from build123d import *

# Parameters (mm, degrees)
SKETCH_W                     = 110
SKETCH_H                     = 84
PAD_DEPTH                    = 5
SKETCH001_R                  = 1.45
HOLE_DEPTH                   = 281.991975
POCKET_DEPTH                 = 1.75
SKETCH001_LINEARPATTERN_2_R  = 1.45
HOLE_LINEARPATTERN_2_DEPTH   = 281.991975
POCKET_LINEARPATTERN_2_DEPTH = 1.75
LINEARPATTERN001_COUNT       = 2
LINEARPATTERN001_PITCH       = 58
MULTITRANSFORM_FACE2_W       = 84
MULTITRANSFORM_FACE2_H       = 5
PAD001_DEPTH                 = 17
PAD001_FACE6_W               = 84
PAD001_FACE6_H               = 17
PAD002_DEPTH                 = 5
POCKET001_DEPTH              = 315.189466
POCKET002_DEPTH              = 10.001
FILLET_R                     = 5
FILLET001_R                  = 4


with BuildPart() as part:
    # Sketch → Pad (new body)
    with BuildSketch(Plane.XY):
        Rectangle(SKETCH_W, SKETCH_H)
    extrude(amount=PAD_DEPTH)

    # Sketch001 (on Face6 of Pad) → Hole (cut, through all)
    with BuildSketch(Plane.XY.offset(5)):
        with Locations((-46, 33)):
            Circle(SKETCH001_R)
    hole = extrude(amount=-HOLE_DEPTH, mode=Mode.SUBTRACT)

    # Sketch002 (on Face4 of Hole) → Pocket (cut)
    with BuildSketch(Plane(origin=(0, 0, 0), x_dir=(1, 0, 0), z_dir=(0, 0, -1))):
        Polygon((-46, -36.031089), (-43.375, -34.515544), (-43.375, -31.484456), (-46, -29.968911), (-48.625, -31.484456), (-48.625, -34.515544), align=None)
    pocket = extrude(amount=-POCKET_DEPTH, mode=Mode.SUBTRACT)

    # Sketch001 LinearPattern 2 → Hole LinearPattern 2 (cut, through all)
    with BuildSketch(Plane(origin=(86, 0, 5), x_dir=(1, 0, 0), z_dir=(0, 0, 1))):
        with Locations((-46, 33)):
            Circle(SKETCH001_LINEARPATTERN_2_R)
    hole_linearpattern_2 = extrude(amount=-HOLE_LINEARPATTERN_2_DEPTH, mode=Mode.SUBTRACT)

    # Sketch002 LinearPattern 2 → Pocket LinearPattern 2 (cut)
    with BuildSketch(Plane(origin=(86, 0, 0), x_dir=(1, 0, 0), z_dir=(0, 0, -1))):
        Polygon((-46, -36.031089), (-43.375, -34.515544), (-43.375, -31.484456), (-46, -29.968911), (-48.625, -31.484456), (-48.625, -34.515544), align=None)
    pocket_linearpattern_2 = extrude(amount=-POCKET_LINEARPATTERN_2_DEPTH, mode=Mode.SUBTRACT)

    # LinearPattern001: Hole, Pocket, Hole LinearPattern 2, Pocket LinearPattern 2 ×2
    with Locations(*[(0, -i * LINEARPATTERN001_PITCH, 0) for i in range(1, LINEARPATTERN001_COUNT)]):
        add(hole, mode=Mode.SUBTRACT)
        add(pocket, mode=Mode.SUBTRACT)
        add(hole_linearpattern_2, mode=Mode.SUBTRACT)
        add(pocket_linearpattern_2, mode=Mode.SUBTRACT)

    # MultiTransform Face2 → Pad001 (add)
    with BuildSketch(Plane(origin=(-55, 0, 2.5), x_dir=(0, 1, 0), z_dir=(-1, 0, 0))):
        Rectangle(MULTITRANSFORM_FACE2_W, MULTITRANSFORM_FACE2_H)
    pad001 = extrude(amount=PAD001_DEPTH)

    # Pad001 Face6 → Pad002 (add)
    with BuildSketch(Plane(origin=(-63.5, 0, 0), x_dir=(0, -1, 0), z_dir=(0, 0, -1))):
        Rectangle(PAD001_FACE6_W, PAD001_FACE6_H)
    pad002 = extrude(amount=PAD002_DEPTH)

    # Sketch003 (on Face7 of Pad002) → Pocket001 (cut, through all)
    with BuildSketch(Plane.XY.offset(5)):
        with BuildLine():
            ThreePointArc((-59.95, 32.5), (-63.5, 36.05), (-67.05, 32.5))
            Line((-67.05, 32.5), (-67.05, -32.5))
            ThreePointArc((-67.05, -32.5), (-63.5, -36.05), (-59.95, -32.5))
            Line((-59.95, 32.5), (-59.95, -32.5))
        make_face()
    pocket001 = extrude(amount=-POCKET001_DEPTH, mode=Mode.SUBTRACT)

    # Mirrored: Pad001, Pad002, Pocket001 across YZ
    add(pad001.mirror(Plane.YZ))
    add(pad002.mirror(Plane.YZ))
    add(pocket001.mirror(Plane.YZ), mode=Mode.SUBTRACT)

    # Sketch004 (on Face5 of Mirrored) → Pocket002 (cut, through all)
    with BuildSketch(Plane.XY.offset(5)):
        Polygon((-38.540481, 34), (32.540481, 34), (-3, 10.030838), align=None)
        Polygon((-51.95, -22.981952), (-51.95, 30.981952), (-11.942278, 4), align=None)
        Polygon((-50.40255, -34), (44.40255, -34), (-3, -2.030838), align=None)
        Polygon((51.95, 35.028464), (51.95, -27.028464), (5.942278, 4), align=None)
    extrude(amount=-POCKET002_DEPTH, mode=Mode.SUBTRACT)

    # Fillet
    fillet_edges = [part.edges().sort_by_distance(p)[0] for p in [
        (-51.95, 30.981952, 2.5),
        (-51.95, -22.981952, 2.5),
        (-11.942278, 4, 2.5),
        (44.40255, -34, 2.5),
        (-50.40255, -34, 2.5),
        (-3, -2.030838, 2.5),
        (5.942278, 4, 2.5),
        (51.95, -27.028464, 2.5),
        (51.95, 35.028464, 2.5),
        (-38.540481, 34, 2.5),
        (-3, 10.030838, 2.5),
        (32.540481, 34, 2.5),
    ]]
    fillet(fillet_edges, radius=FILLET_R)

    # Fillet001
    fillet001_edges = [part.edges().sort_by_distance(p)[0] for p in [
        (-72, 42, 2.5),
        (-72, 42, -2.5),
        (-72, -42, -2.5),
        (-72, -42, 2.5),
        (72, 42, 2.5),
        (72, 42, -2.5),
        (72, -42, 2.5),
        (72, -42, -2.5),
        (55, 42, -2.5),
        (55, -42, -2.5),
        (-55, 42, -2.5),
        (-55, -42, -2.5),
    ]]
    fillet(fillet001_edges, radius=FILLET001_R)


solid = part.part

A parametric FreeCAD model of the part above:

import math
import FreeCAD as App
import Part
import Sketcher

V = App.Vector
Q = App.Units.Quantity


def edges_at(feature, points):
    """Names of the edges that pass closest to the given points."""
    edges = feature.Shape.Edges
    near = lambda p: min(range(len(edges)), key=lambda i: edges[i].distToShape(Part.Vertex(*p))[0])
    return sorted({f"Edge{near(p) + 1}" for p in points})

doc = App.newDocument("Part")
params = doc.addObject("Spreadsheet::Sheet", "Params")
for row, (alias, value) in enumerate([
    ("sketch1_width", "110 mm"),
    ("sketch1_height", "84 mm"),
    ("pad1_length", "5 mm"),
    ("sketch2_diameter", "2.9 mm"),
    ("pocket2_length", "1.75 mm"),
    ("sketch4_diameter", "2.9 mm"),
    ("pocket4_length", "1.75 mm"),
    ("linearpattern_pitch", "58 mm"),
    ("sketch6_width", "84 mm"),
    ("sketch6_height", "5 mm"),
    ("pad2_length", "17 mm"),
    ("sketch7_width", "17 mm"),
    ("sketch7_height", "84 mm"),
    ("pad3_length", "5 mm"),
    ("sketch8_height", "65 mm"),
    ("sketch8_radius", "3.55 mm"),
    ("fillet_radius", "5 mm"),
    ("fillet2_radius", "4 mm"),
], start=1):
    params.set(f"A{row}", alias)
    params.set(f"B{row}", "=" + value)
    params.setAlias(f"B{row}", alias)

body = doc.addObject("PartDesign::Body", "Body")

# Sketch on XY plane
sketch1 = body.newObject("Sketcher::SketchObject", "Sketch")
sketch1.AttachmentSupport = (doc.getObject("XY_Plane"), [""])
sketch1.MapMode = "FlatFace"
sketch1.addGeometry([
    Part.LineSegment(V(-55, 42, 0), V(-55, -42, 0)),
    Part.LineSegment(V(-55, -42, 0), V(55, -42, 0)),
    Part.LineSegment(V(55, -42, 0), V(55, 42, 0)),
    Part.LineSegment(V(55, 42, 0), V(-55, 42, 0)),
], False)
sketch1.addConstraint([
    Sketcher.Constraint("Coincident", 0, 2, 1, 1),
    Sketcher.Constraint("Coincident", 1, 2, 2, 1),
    Sketcher.Constraint("Coincident", 2, 2, 3, 1),
    Sketcher.Constraint("Coincident", 3, 2, 0, 1),
    Sketcher.Constraint("Vertical", 0),
    Sketcher.Constraint("Horizontal", 1),
    Sketcher.Constraint("Vertical", 2),
    Sketcher.Constraint("Horizontal", 3),
    Sketcher.Constraint("Symmetric", 0, 2, 2, 2, -1, 1),
    Sketcher.Constraint("DistanceX", 1, 1, 1, 2, Q("110 mm")),
    Sketcher.Constraint("DistanceY", 0, 2, 0, 1, Q("84 mm")),
])
sketch1.setExpression("Constraints[9]", "Params.sketch1_width")
sketch1.setExpression("Constraints[10]", "Params.sketch1_height")
pad1 = body.newObject("PartDesign::Pad", "Pad")
pad1.Profile = sketch1
pad1.setExpression("Length", "Params.pad1_length")

# Sketch on XY plane
sketch2 = body.newObject("Sketcher::SketchObject", "Sketch001")
sketch2.AttachmentSupport = (doc.getObject("XY_Plane"), [""])
sketch2.MapMode = "FlatFace"
sketch2.AttachmentOffset = App.Placement(V(0, 0, 5), App.Rotation())
sketch2.addGeometry(Part.Circle(V(-46, 33, 0), V(0, 0, 1), 1.45), False)
sketch2.addConstraint([
    Sketcher.Constraint("Diameter", 0, Q("2.9 mm")),
    Sketcher.Constraint("DistanceX", 0, 3, -1, 1, Q("46 mm")),
    Sketcher.Constraint("DistanceY", -1, 1, 0, 3, Q("33 mm")),
])
sketch2.setExpression("Constraints[0]", "Params.sketch2_diameter")
pocket1 = body.newObject("PartDesign::Pocket", "Pocket")
pocket1.Profile = sketch2
pocket1.Type = "ThroughAll"

# Sketch on XY plane
sketch3 = body.newObject("Sketcher::SketchObject", "Sketch002")
sketch3.AttachmentSupport = (doc.getObject("XY_Plane"), [""])
sketch3.MapMode = "FlatFace"
sketch3.addGeometry([
    Part.LineSegment(V(-46, 36.031089, 0), V(-43.375, 34.515544, 0)),  # 0
    Part.LineSegment(V(-43.375, 34.515544, 0), V(-43.375, 31.484456, 0)),  # 1
    Part.LineSegment(V(-43.375, 31.484456, 0), V(-46, 29.968911, 0)),  # 2
    Part.LineSegment(V(-46, 29.968911, 0), V(-48.625, 31.484456, 0)),  # 3
    Part.LineSegment(V(-48.625, 31.484456, 0), V(-48.625, 34.515544, 0)),  # 4
    Part.LineSegment(V(-48.625, 34.515544, 0), V(-46, 36.031089, 0)),  # 5
], False)
sketch3.addConstraint([
    Sketcher.Constraint("Coincident", 0, 2, 1, 1),
    Sketcher.Constraint("Coincident", 1, 2, 2, 1),
    Sketcher.Constraint("Coincident", 2, 2, 3, 1),
    Sketcher.Constraint("Coincident", 3, 2, 4, 1),
    Sketcher.Constraint("Coincident", 4, 2, 5, 1),
    Sketcher.Constraint("Coincident", 5, 2, 0, 1),
    Sketcher.Constraint("Vertical", 1),
    Sketcher.Constraint("Vertical", 4),
    Sketcher.Constraint("Parallel", 0, 3),
    Sketcher.Constraint("Parallel", 2, 5),
    Sketcher.Constraint("Horizontal", 1, 2, 3, 2),
    Sketcher.Constraint("Horizontal", 0, 2, 4, 2),
    Sketcher.Constraint("Vertical", 2, 2, 5, 2),
    Sketcher.Constraint("Angle", 0, Q("-30.000009 deg")),
    Sketcher.Constraint("DistanceX", 2, 2, -1, 1, Q("46 mm")),
    Sketcher.Constraint("DistanceX", 3, 2, 1, 2, Q("5.25 mm")),
    Sketcher.Constraint("DistanceY", 1, 2, 1, 1, Q("3.031088 mm")),
    Sketcher.Constraint("DistanceY", -1, 1, 2, 2, Q("29.968911 mm")),
])
pocket2 = body.newObject("PartDesign::Pocket", "Pocket001")
pocket2.Profile = sketch3
pocket2.setExpression("Length", "Params.pocket2_length")
pocket2.Reversed = True

# Sketch on XY plane
sketch4 = body.newObject("Sketcher::SketchObject", "Sketch003")
sketch4.AttachmentSupport = (doc.getObject("XY_Plane"), [""])
sketch4.MapMode = "FlatFace"
sketch4.AttachmentOffset = App.Placement(V(0, 0, 5), App.Rotation())
sketch4.addGeometry(Part.Circle(V(40, 33, 0), V(0, 0, 1), 1.45), False)
sketch4.addConstraint([
    Sketcher.Constraint("Diameter", 0, Q("2.9 mm")),
    Sketcher.Constraint("DistanceX", -1, 1, 0, 3, Q("40 mm")),
    Sketcher.Constraint("DistanceY", -1, 1, 0, 3, Q("33 mm")),
])
sketch4.setExpression("Constraints[0]", "Params.sketch4_diameter")
pocket3 = body.newObject("PartDesign::Pocket", "Pocket002")
pocket3.Profile = sketch4
pocket3.Type = "ThroughAll"

# Sketch on XY plane
sketch5 = body.newObject("Sketcher::SketchObject", "Sketch004")
sketch5.AttachmentSupport = (doc.getObject("XY_Plane"), [""])
sketch5.MapMode = "FlatFace"
sketch5.addGeometry([
    Part.LineSegment(V(40, 36.031089, 0), V(42.625, 34.515544, 0)),  # 0
    Part.LineSegment(V(42.625, 34.515544, 0), V(42.625, 31.484456, 0)),  # 1
    Part.LineSegment(V(42.625, 31.484456, 0), V(40, 29.968911, 0)),  # 2
    Part.LineSegment(V(40, 29.968911, 0), V(37.375, 31.484456, 0)),  # 3
    Part.LineSegment(V(37.375, 31.484456, 0), V(37.375, 34.515544, 0)),  # 4
    Part.LineSegment(V(37.375, 34.515544, 0), V(40, 36.031089, 0)),  # 5
], False)
sketch5.addConstraint([
    Sketcher.Constraint("Coincident", 0, 2, 1, 1),
    Sketcher.Constraint("Coincident", 1, 2, 2, 1),
    Sketcher.Constraint("Coincident", 2, 2, 3, 1),
    Sketcher.Constraint("Coincident", 3, 2, 4, 1),
    Sketcher.Constraint("Coincident", 4, 2, 5, 1),
    Sketcher.Constraint("Coincident", 5, 2, 0, 1),
    Sketcher.Constraint("Vertical", 1),
    Sketcher.Constraint("Vertical", 4),
    Sketcher.Constraint("Parallel", 0, 3),
    Sketcher.Constraint("Parallel", 2, 5),
    Sketcher.Constraint("Horizontal", 1, 2, 3, 2),
    Sketcher.Constraint("Horizontal", 0, 2, 4, 2),
    Sketcher.Constraint("Vertical", 2, 2, 5, 2),
    Sketcher.Constraint("Angle", 0, Q("-30.000009 deg")),
    Sketcher.Constraint("DistanceX", -1, 1, 2, 2, Q("40 mm")),
    Sketcher.Constraint("DistanceX", 3, 2, 1, 2, Q("5.25 mm")),
    Sketcher.Constraint("DistanceY", 1, 2, 1, 1, Q("3.031088 mm")),
    Sketcher.Constraint("DistanceY", -1, 1, 2, 2, Q("29.968911 mm")),
])
pocket4 = body.newObject("PartDesign::Pocket", "Pocket003")
pocket4.Profile = sketch5
pocket4.setExpression("Length", "Params.pocket4_length")
pocket4.Reversed = True
doc.recompute()

linearpattern = body.newObject("PartDesign::LinearPattern", "LinearPattern")
linearpattern.Originals = [pocket1, pocket2, pocket3, pocket4]
linearpattern.Direction = (doc.getObject("Y_Axis"), [""])
linearpattern.Mode = "offset"
linearpattern.setExpression("Offset", "Params.linearpattern_pitch")
linearpattern.Occurrences = 2
linearpattern.Reversed = True
body.Tip = linearpattern

# Sketch on YZ plane
sketch6 = body.newObject("Sketcher::SketchObject", "Sketch005")
sketch6.AttachmentSupport = (doc.getObject("YZ_Plane"), [""])
sketch6.MapMode = "FlatFace"
sketch6.AttachmentOffset = App.Placement(V(0, 0, -55), App.Rotation())
sketch6.addGeometry([
    Part.LineSegment(V(-42, 0, 0), V(-42, 5, 0)),
    Part.LineSegment(V(-42, 5, 0), V(42, 5, 0)),
    Part.LineSegment(V(42, 5, 0), V(42, 0, 0)),
    Part.LineSegment(V(42, 0, 0), V(-42, 0, 0)),
], False)
sketch6.addConstraint([
    Sketcher.Constraint("Coincident", 0, 2, 1, 1),
    Sketcher.Constraint("Coincident", 1, 2, 2, 1),
    Sketcher.Constraint("Coincident", 2, 2, 3, 1),
    Sketcher.Constraint("Coincident", 3, 2, 0, 1),
    Sketcher.Constraint("Vertical", 0),
    Sketcher.Constraint("Horizontal", 1),
    Sketcher.Constraint("Vertical", 2),
    Sketcher.Constraint("Horizontal", 3),
    Sketcher.Constraint("Symmetric", 2, 2, 3, 2, -1, 1),
    Sketcher.Constraint("DistanceX", 1, 1, 1, 2, Q("84 mm")),
    Sketcher.Constraint("DistanceY", 0, 1, 0, 2, Q("5 mm")),
])
sketch6.setExpression("Constraints[9]", "Params.sketch6_width")
sketch6.setExpression("Constraints[10]", "Params.sketch6_height")
pad2 = body.newObject("PartDesign::Pad", "Pad001")
pad2.Profile = sketch6
pad2.setExpression("Length", "Params.pad2_length")
pad2.Reversed = True

# Sketch on XY plane
sketch7 = body.newObject("Sketcher::SketchObject", "Sketch006")
sketch7.AttachmentSupport = (doc.getObject("XY_Plane"), [""])
sketch7.MapMode = "FlatFace"
sketch7.addGeometry([
    Part.LineSegment(V(-72, 42, 0), V(-55, 42, 0)),
    Part.LineSegment(V(-55, 42, 0), V(-55, -42, 0)),
    Part.LineSegment(V(-55, -42, 0), V(-72, -42, 0)),
    Part.LineSegment(V(-72, -42, 0), V(-72, 42, 0)),
], False)
sketch7.addConstraint([
    Sketcher.Constraint("Coincident", 0, 2, 1, 1),
    Sketcher.Constraint("Coincident", 1, 2, 2, 1),
    Sketcher.Constraint("Coincident", 2, 2, 3, 1),
    Sketcher.Constraint("Coincident", 3, 2, 0, 1),
    Sketcher.Constraint("Horizontal", 0),
    Sketcher.Constraint("Vertical", 1),
    Sketcher.Constraint("Horizontal", 2),
    Sketcher.Constraint("Vertical", 3),
    Sketcher.Constraint("DistanceX", 0, 1, 0, 2, Q("17 mm")),
    Sketcher.Constraint("DistanceY", 1, 2, 1, 1, Q("84 mm")),
    Sketcher.Constraint("DistanceX", 0, 2, -1, 1, Q("55 mm")),
    Sketcher.Constraint("DistanceY", -1, 1, 0, 2, Q("42 mm")),
])
sketch7.setExpression("Constraints[8]", "Params.sketch7_width")
sketch7.setExpression("Constraints[9]", "Params.sketch7_height")
pad3 = body.newObject("PartDesign::Pad", "Pad002")
pad3.Profile = sketch7
pad3.setExpression("Length", "Params.pad3_length")
pad3.Reversed = True

# Sketch on XY plane
sketch8 = body.newObject("Sketcher::SketchObject", "Sketch007")
sketch8.AttachmentSupport = (doc.getObject("XY_Plane"), [""])
sketch8.MapMode = "FlatFace"
sketch8.AttachmentOffset = App.Placement(V(0, 0, 5), App.Rotation())
sketch8.addGeometry([
    Part.ArcOfCircle(Part.Circle(V(-63.5, 32.5, 0), V(0, 0, 1), 3.55), math.radians(0), math.radians(180)),
    Part.LineSegment(V(-67.05, 32.5, 0), V(-67.05, -32.5, 0)),
    Part.ArcOfCircle(Part.Circle(V(-63.5, -32.5, 0), V(0, 0, 1), 3.55), math.radians(180), math.radians(360)),
    Part.LineSegment(V(-59.95, -32.5, 0), V(-59.95, 32.5, 0)),
], False)
sketch8.addConstraint([
    Sketcher.Constraint("Tangent", 0, 2, 1, 1),
    Sketcher.Constraint("Tangent", 1, 2, 2, 1),
    Sketcher.Constraint("Tangent", 2, 2, 3, 1),
    Sketcher.Constraint("Tangent", 3, 2, 0, 1),
    Sketcher.Constraint("Vertical", 1),
    Sketcher.Constraint("Vertical", 3),
    Sketcher.Constraint("DistanceY", 1, 2, 1, 1, Q("65 mm")),
    Sketcher.Constraint("Radius", 0, Q("3.55 mm")),
    Sketcher.Constraint("DistanceX", 0, 3, -1, 1, Q("63.5 mm")),
    Sketcher.Constraint("DistanceY", -1, 1, 0, 3, Q("32.5 mm")),
])
sketch8.setExpression("Constraints[6]", "Params.sketch8_height")
sketch8.setExpression("Constraints[7]", "Params.sketch8_radius")
pocket5 = body.newObject("PartDesign::Pocket", "Pocket004")
pocket5.Profile = sketch8
pocket5.Type = "ThroughAll"
doc.recompute()

mirrored = body.newObject("PartDesign::Mirrored", "Mirrored")
mirrored.Originals = [pad2, pad3, pocket5]
mirrored.MirrorPlane = (doc.getObject("YZ_Plane"), [""])
body.Tip = mirrored

# Sketch on XY plane
sketch9 = body.newObject("Sketcher::SketchObject", "Sketch008")
sketch9.AttachmentSupport = (doc.getObject("XY_Plane"), [""])
sketch9.MapMode = "FlatFace"
sketch9.AttachmentOffset = App.Placement(V(0, 0, 5), App.Rotation())
sketch9.addGeometry([
    Part.LineSegment(V(32.540481, 34, 0), V(-38.540481, 34, 0)),  # 0
    Part.LineSegment(V(-38.540481, 34, 0), V(-3, 10.030838, 0)),  # 1
    Part.LineSegment(V(-3, 10.030838, 0), V(32.540481, 34, 0)),  # 2
    Part.LineSegment(V(-51.95, 30.981952, 0), V(-51.95, -22.981952, 0)),  # 3
    Part.LineSegment(V(-51.95, -22.981952, 0), V(-11.942278, 4, 0)),  # 4
    Part.LineSegment(V(-11.942278, 4, 0), V(-51.95, 30.981952, 0)),  # 5
    Part.LineSegment(V(-50.40255, -34, 0), V(44.40255, -34, 0)),  # 6
    Part.LineSegment(V(44.40255, -34, 0), V(-3, -2.030838, 0)),  # 7
    Part.LineSegment(V(-3, -2.030838, 0), V(-50.40255, -34, 0)),  # 8
    Part.LineSegment(V(51.95, -27.028464, 0), V(51.95, 35.028464, 0)),  # 9
    Part.LineSegment(V(51.95, 35.028464, 0), V(5.942278, 4, 0)),  # 10
    Part.LineSegment(V(5.942278, 4, 0), V(51.95, -27.028464, 0)),  # 11
], False)
sketch9.addConstraint([
    Sketcher.Constraint("Coincident", 0, 2, 1, 1),
    Sketcher.Constraint("Coincident", 1, 2, 2, 1),
    Sketcher.Constraint("Coincident", 2, 2, 0, 1),
    Sketcher.Constraint("Coincident", 3, 2, 4, 1),
    Sketcher.Constraint("Coincident", 4, 2, 5, 1),
    Sketcher.Constraint("Coincident", 5, 2, 3, 1),
    Sketcher.Constraint("Coincident", 6, 2, 7, 1),
    Sketcher.Constraint("Coincident", 7, 2, 8, 1),
    Sketcher.Constraint("Coincident", 8, 2, 6, 1),
    Sketcher.Constraint("Coincident", 9, 2, 10, 1),
    Sketcher.Constraint("Coincident", 10, 2, 11, 1),
    Sketcher.Constraint("Coincident", 11, 2, 9, 1),
    Sketcher.Constraint("Horizontal", 0),
    Sketcher.Constraint("Vertical", 3),
    Sketcher.Constraint("Horizontal", 6),
    Sketcher.Constraint("Vertical", 9),
    Sketcher.Constraint("Parallel", 2, 4),
    Sketcher.Constraint("Parallel", 1, 5),
    Sketcher.Constraint("Parallel", 5, 7),
    Sketcher.Constraint("Parallel", 4, 8),
    Sketcher.Constraint("Parallel", 8, 10),
    Sketcher.Constraint("Parallel", 7, 11),
    Sketcher.Constraint("Horizontal", 4, 2, 10, 2),
    Sketcher.Constraint("Vertical", 1, 2, 7, 2),
    Sketcher.Constraint("Equal", 1, 2),
    Sketcher.Constraint("DistanceY", -1, 1, 0, 2, Q("34 mm")),
    Sketcher.Constraint("DistanceX", 1, 2, -1, 1, Q("3 mm")),
    Sketcher.Constraint("DistanceY", -1, 1, 4, 2, Q("4 mm")),
    Sketcher.Constraint("DistanceY", 6, 2, -1, 1, Q("34 mm")),
    Sketcher.Constraint("DistanceX", 3, 2, -1, 1, Q("51.95 mm")),
    Sketcher.Constraint("DistanceX", -1, 1, 9, 2, Q("51.95 mm")),
    Sketcher.Constraint("DistanceX", 6, 1, 6, 2, Q("94.8051 mm")),
    Sketcher.Constraint("DistanceX", 0, 2, 0, 1, Q("71.080962 mm")),
    Sketcher.Constraint("Distance", 1, Q("42.867779 mm")),
    Sketcher.Constraint("Distance", 4, Q("48.256021 mm")),
    Sketcher.Constraint("DistanceY", 9, 1, 9, 2, Q("62.056928 mm")),
])
pocket6 = body.newObject("PartDesign::Pocket", "Pocket005")
pocket6.Profile = sketch9
pocket6.Type = "ThroughAll"
doc.recompute()

fillet = body.newObject("PartDesign::Fillet", "Fillet")
fillet.Base = (pocket6, edges_at(pocket6, [
    (-51.95, 30.982, 2.5),
    (-51.95, -22.982, 2.5),
    (-11.942, 4, 2.5),
    (44.403, -34, 2.5),
    (-50.403, -34, 2.5),
    (-3, -2.031, 2.5),
    (5.942, 4, 2.5),
    (51.95, -27.028, 2.5),
    (51.95, 35.028, 2.5),
    (-38.54, 34, 2.5),
    (-3, 10.031, 2.5),
    (32.54, 34, 2.5),
]))
fillet.setExpression("Radius", "Params.fillet_radius")
doc.recompute()

fillet2 = body.newObject("PartDesign::Fillet", "Fillet001")
fillet2.Base = (fillet, edges_at(fillet, [
    (-72, 42, 0),
    (-72, 42, 0),
    (-72, -42, 0),
    (-72, -42, 0),
    (72, 42, 0),
    (72, 42, 0),
    (72, -42, 0),
    (72, -42, 0),
    (55, 42, -2.5),
    (55, -42, -2.5),
    (-55, 42, -2.5),
    (-55, -42, -2.5),
]))
fillet2.setExpression("Radius", "Params.fillet2_radius")

doc.recompute()
